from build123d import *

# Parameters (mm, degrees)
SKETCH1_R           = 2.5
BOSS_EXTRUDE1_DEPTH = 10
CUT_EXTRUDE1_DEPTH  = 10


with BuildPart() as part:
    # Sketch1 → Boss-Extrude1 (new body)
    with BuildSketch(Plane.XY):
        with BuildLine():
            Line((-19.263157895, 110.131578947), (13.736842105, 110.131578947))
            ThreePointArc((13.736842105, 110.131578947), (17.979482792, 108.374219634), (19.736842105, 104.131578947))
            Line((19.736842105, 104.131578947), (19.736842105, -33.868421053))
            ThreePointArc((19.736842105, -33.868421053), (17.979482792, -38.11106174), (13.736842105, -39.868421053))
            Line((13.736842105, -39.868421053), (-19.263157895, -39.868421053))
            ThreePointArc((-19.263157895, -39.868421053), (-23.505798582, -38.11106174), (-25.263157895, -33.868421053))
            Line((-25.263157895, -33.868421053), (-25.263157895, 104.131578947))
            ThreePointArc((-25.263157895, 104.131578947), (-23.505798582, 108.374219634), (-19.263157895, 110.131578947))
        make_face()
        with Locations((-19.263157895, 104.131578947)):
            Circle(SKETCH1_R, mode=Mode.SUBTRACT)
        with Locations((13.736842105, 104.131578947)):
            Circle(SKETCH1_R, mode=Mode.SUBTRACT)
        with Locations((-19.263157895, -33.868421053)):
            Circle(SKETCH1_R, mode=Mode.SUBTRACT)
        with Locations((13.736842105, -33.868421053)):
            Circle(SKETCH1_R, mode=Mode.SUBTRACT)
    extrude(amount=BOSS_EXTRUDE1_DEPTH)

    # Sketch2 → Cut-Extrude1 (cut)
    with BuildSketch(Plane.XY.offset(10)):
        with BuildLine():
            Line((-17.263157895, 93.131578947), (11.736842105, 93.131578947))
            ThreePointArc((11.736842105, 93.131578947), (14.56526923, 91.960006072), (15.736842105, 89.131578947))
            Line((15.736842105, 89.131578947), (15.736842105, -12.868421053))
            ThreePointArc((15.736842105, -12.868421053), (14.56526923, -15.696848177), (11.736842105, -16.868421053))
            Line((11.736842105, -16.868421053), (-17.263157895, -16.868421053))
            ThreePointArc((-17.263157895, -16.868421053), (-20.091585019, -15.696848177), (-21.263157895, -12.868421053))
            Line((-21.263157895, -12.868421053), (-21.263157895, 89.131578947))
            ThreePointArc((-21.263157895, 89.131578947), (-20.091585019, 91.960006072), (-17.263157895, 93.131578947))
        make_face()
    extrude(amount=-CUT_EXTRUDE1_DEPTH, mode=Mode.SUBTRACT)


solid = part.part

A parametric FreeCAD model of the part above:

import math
import FreeCAD as App
import Part
import Sketcher
from FreeCAD import Vector

doc = App.newDocument("Part")
body = doc.addObject("PartDesign::Body", "Body")

# Sketch on XY plane
sketch1 = doc.addObject("Sketcher::SketchObject", "Sketch")
body.addObject(sketch1)
sketch1.AttachmentSupport = (doc.XY_Plane, [""])
sketch1.MapMode = "FlatFace"
sketch1.addGeometry([
    Part.LineSegment(Vector(13.7, 110.1, 0), Vector(-19.3, 110.1, 0)),  # 0
    Part.ArcOfCircle(Part.Circle(Vector(-19.3, 104.1, 0), Vector(0, 0, 1), 6), math.radians(90), math.radians(180)),  # 1
    Part.LineSegment(Vector(-25.3, 104.1, 0), Vector(-25.3, -33.9, 0)),  # 2
    Part.ArcOfCircle(Part.Circle(Vector(-19.3, -33.9, 0), Vector(0, 0, 1), 6), math.radians(180), math.radians(270)),  # 3
    Part.LineSegment(Vector(-19.3, -39.9, 0), Vector(13.7, -39.9, 0)),  # 4
    Part.ArcOfCircle(Part.Circle(Vector(13.7, -33.9, 0), Vector(0, 0, 1), 6), math.radians(-90), math.radians(0)),  # 5
    Part.LineSegment(Vector(19.7, -33.9, 0), Vector(19.7, 104.1, 0)),  # 6
    Part.ArcOfCircle(Part.Circle(Vector(13.7, 104.1, 0), Vector(0, 0, 1), 6), math.radians(0), math.radians(90)),  # 7
    Part.Circle(Vector(13.7, -33.9, 0), Vector(0, 0, 1), 2.5),  # 8
    Part.Circle(Vector(-19.3, -33.9, 0), Vector(0, 0, 1), 2.5),  # 9
    Part.Circle(Vector(13.7, 104.1, 0), Vector(0, 0, 1), 2.5),  # 10
    Part.Circle(Vector(-19.3, 104.1, 0), Vector(0, 0, 1), 2.5),  # 11
], False)
sketch1.addConstraint([
    Sketcher.Constraint("Tangent", 0, 2, 1, 1),
    Sketcher.Constraint("Tangent", 1, 2, 2, 1),
    Sketcher.Constraint("Tangent", 2, 2, 3, 1),
    Sketcher.Constraint("Tangent", 3, 2, 4, 1),
    Sketcher.Constraint("Tangent", 4, 2, 5, 1),
    Sketcher.Constraint("Tangent", 5, 2, 6, 1),
    Sketcher.Constraint("Tangent", 6, 2, 7, 1),
    Sketcher.Constraint("Tangent", 7, 2, 0, 1),
    Sketcher.Constraint("Horizontal", 0),
    Sketcher.Constraint("Vertical", 2),
    Sketcher.Constraint("Horizontal", 4),
    Sketcher.Constraint("Vertical", 6),
    Sketcher.Constraint("Coincident", 8, 3, 5, 3),
    Sketcher.Constraint("Coincident", 9, 3, 3, 3),
    Sketcher.Constraint("Coincident", 10, 3, 7, 3),
    Sketcher.Constraint("Coincident", 11, 3, 1, 3),
    Sketcher.Constraint("Equal", 1, 3),
    Sketcher.Constraint("Equal", 3, 5),
    Sketcher.Constraint("Equal", 5, 7),
    Sketcher.Constraint("Equal", 8, 9),
    Sketcher.Constraint("Equal", 9, 10),
    Sketcher.Constraint("Equal", 10, 11),
    Sketcher.Constraint("Diameter", 8, 5.0),
    Sketcher.Constraint("Radius", 1, 6.0),
    Sketcher.Constraint("DistanceX", 0, 2, 0, 1, 33.0),
    Sketcher.Constraint("DistanceY", 2, 2, 2, 1, 138.0),
    Sketcher.Constraint("DistanceY", -1, 1, 1, 3, 104.131579),
    Sketcher.Constraint("DistanceX", 1, 3, -1, 1, 19.263158),
])
pad1 = doc.addObject("PartDesign::Pad", "Pad")
body.addObject(pad1)
pad1.Profile = sketch1
pad1.Length = 10

# Sketch on XY plane
sketch2 = doc.addObject("Sketcher::SketchObject", "Sketch001")
body.addObject(sketch2)
sketch2.AttachmentSupport = (doc.XY_Plane, [""])
sketch2.MapMode = "FlatFace"
sketch2.AttachmentOffset = App.Placement(Vector(0, 0, 10), App.Rotation())
sketch2.addGeometry([
    Part.LineSegment(Vector(11.7, 93.1, 0), Vector(-17.3, 93.1, 0)),  # 0
    Part.ArcOfCircle(Part.Circle(Vector(-17.3, 89.1, 0), Vector(0, 0, 1), 4), math.radians(90), math.radians(180)),  # 1
    Part.LineSegment(Vector(-21.3, 89.1, 0), Vector(-21.3, -12.9, 0)),  # 2
    Part.ArcOfCircle(Part.Circle(Vector(-17.3, -12.9, 0), Vector(0, 0, 1), 4), math.radians(-180), math.radians(-90)),  # 3
    Part.LineSegment(Vector(-17.3, -16.9, 0), Vector(11.7, -16.9, 0)),  # 4
    Part.ArcOfCircle(Part.Circle(Vector(11.7, -12.9, 0), Vector(0, 0, 1), 4), math.radians(-90), math.radians(0)),  # 5
    Part.LineSegment(Vector(15.7, -12.9, 0), Vector(15.7, 89.1, 0)),  # 6
    Part.ArcOfCircle(Part.Circle(Vector(11.7, 89.1, 0), Vector(0, 0, 1), 4), math.radians(0), math.radians(90)),  # 7
], False)
sketch2.addConstraint([
    Sketcher.Constraint("Tangent", 0, 2, 1, 1),
    Sketcher.Constraint("Tangent", 1, 2, 2, 1),
    Sketcher.Constraint("Tangent", 2, 2, 3, 1),
    Sketcher.Constraint("Tangent", 3, 2, 4, 1),
    Sketcher.Constraint("Tangent", 4, 2, 5, 1),
    Sketcher.Constraint("Tangent", 5, 2, 6, 1),
    Sketcher.Constraint("Tangent", 6, 2, 7, 1),
    Sketcher.Constraint("Tangent", 7, 2, 0, 1),
    Sketcher.Constraint("Horizontal", 0),
    Sketcher.Constraint("Vertical", 2),
    Sketcher.Constraint("Horizontal", 4),
    Sketcher.Constraint("Vertical", 6),
    Sketcher.Constraint("Equal", 1, 3),
    Sketcher.Constraint("Equal", 3, 5),
    Sketcher.Constraint("Equal", 5, 7),
    Sketcher.Constraint("Radius", 1, 4.0),
    Sketcher.Constraint("DistanceX", 0, 2, 0, 1, 29.0),
    Sketcher.Constraint("DistanceY", 2, 2, 2, 1, 102.0),
    Sketcher.Constraint("DistanceY", -1, 1, 1, 3, 89.131579),
    Sketcher.Constraint("DistanceX", 1, 3, -1, 1, 17.263158),
])
pocket1 = doc.addObject("PartDesign::Pocket", "Pocket")
body.addObject(pocket1)
pocket1.Profile = sketch2
pocket1.Length = 10

doc.recompute()
